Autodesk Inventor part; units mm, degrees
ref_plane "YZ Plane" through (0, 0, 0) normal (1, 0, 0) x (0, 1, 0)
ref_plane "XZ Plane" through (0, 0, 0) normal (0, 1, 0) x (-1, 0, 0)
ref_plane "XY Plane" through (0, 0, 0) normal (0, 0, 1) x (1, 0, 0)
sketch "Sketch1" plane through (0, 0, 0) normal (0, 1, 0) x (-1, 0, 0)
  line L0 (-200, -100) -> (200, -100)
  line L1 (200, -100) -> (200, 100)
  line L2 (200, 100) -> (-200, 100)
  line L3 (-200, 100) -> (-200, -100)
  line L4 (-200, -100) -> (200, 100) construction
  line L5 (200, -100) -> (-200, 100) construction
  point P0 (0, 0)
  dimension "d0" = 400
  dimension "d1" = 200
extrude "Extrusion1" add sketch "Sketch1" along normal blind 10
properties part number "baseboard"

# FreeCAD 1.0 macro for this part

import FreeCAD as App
import Part
import Sketcher

doc = App.newDocument("Part")
body = doc.addObject("PartDesign::Body", "Body")

# Sketch on XZ plane
sketch1 = body.newObject("Sketcher::SketchObject", "Sketch")
sketch1.AttachmentSupport = (doc.getObject("XZ_Plane"), [""])
sketch1.MapMode = "FlatFace"
sketch1.addGeometry([
    Part.LineSegment(App.Vector(200, 100, 0), App.Vector(200, -100, 0)),
    Part.LineSegment(App.Vector(200, -100, 0), App.Vector(-200, -100, 0)),
    Part.LineSegment(App.Vector(-200, -100, 0), App.Vector(-200, 100, 0)),
    Part.LineSegment(App.Vector(-200, 100, 0), App.Vector(200, 100, 0)),
], False)
sketch1.addConstraint([
    Sketcher.Constraint("Coincident", 0, 2, 1, 1),
    Sketcher.Constraint("Coincident", 1, 2, 2, 1),
    Sketcher.Constraint("Coincident", 2, 2, 3, 1),
    Sketcher.Constraint("Coincident", 3, 2, 0, 1),
    Sketcher.Constraint("Vertical", 0),
    Sketcher.Constraint("Horizontal", 1),
    Sketcher.Constraint("Vertical", 2),
    Sketcher.Constraint("Horizontal", 3),
    Sketcher.Constraint("Symmetric", 0, 2, 2, 2, -1, 1),
    Sketcher.Constraint("DistanceX", 1, 2, 1, 1, 400.0),
    Sketcher.Constraint("DistanceY", 0, 2, 0, 1, 200.0),
])
pad1 = body.newObject("PartDesign::Pad", "Pad")
pad1.Profile = sketch1
pad1.Length = 10
pad1.Reversed = True

doc.recompute()
